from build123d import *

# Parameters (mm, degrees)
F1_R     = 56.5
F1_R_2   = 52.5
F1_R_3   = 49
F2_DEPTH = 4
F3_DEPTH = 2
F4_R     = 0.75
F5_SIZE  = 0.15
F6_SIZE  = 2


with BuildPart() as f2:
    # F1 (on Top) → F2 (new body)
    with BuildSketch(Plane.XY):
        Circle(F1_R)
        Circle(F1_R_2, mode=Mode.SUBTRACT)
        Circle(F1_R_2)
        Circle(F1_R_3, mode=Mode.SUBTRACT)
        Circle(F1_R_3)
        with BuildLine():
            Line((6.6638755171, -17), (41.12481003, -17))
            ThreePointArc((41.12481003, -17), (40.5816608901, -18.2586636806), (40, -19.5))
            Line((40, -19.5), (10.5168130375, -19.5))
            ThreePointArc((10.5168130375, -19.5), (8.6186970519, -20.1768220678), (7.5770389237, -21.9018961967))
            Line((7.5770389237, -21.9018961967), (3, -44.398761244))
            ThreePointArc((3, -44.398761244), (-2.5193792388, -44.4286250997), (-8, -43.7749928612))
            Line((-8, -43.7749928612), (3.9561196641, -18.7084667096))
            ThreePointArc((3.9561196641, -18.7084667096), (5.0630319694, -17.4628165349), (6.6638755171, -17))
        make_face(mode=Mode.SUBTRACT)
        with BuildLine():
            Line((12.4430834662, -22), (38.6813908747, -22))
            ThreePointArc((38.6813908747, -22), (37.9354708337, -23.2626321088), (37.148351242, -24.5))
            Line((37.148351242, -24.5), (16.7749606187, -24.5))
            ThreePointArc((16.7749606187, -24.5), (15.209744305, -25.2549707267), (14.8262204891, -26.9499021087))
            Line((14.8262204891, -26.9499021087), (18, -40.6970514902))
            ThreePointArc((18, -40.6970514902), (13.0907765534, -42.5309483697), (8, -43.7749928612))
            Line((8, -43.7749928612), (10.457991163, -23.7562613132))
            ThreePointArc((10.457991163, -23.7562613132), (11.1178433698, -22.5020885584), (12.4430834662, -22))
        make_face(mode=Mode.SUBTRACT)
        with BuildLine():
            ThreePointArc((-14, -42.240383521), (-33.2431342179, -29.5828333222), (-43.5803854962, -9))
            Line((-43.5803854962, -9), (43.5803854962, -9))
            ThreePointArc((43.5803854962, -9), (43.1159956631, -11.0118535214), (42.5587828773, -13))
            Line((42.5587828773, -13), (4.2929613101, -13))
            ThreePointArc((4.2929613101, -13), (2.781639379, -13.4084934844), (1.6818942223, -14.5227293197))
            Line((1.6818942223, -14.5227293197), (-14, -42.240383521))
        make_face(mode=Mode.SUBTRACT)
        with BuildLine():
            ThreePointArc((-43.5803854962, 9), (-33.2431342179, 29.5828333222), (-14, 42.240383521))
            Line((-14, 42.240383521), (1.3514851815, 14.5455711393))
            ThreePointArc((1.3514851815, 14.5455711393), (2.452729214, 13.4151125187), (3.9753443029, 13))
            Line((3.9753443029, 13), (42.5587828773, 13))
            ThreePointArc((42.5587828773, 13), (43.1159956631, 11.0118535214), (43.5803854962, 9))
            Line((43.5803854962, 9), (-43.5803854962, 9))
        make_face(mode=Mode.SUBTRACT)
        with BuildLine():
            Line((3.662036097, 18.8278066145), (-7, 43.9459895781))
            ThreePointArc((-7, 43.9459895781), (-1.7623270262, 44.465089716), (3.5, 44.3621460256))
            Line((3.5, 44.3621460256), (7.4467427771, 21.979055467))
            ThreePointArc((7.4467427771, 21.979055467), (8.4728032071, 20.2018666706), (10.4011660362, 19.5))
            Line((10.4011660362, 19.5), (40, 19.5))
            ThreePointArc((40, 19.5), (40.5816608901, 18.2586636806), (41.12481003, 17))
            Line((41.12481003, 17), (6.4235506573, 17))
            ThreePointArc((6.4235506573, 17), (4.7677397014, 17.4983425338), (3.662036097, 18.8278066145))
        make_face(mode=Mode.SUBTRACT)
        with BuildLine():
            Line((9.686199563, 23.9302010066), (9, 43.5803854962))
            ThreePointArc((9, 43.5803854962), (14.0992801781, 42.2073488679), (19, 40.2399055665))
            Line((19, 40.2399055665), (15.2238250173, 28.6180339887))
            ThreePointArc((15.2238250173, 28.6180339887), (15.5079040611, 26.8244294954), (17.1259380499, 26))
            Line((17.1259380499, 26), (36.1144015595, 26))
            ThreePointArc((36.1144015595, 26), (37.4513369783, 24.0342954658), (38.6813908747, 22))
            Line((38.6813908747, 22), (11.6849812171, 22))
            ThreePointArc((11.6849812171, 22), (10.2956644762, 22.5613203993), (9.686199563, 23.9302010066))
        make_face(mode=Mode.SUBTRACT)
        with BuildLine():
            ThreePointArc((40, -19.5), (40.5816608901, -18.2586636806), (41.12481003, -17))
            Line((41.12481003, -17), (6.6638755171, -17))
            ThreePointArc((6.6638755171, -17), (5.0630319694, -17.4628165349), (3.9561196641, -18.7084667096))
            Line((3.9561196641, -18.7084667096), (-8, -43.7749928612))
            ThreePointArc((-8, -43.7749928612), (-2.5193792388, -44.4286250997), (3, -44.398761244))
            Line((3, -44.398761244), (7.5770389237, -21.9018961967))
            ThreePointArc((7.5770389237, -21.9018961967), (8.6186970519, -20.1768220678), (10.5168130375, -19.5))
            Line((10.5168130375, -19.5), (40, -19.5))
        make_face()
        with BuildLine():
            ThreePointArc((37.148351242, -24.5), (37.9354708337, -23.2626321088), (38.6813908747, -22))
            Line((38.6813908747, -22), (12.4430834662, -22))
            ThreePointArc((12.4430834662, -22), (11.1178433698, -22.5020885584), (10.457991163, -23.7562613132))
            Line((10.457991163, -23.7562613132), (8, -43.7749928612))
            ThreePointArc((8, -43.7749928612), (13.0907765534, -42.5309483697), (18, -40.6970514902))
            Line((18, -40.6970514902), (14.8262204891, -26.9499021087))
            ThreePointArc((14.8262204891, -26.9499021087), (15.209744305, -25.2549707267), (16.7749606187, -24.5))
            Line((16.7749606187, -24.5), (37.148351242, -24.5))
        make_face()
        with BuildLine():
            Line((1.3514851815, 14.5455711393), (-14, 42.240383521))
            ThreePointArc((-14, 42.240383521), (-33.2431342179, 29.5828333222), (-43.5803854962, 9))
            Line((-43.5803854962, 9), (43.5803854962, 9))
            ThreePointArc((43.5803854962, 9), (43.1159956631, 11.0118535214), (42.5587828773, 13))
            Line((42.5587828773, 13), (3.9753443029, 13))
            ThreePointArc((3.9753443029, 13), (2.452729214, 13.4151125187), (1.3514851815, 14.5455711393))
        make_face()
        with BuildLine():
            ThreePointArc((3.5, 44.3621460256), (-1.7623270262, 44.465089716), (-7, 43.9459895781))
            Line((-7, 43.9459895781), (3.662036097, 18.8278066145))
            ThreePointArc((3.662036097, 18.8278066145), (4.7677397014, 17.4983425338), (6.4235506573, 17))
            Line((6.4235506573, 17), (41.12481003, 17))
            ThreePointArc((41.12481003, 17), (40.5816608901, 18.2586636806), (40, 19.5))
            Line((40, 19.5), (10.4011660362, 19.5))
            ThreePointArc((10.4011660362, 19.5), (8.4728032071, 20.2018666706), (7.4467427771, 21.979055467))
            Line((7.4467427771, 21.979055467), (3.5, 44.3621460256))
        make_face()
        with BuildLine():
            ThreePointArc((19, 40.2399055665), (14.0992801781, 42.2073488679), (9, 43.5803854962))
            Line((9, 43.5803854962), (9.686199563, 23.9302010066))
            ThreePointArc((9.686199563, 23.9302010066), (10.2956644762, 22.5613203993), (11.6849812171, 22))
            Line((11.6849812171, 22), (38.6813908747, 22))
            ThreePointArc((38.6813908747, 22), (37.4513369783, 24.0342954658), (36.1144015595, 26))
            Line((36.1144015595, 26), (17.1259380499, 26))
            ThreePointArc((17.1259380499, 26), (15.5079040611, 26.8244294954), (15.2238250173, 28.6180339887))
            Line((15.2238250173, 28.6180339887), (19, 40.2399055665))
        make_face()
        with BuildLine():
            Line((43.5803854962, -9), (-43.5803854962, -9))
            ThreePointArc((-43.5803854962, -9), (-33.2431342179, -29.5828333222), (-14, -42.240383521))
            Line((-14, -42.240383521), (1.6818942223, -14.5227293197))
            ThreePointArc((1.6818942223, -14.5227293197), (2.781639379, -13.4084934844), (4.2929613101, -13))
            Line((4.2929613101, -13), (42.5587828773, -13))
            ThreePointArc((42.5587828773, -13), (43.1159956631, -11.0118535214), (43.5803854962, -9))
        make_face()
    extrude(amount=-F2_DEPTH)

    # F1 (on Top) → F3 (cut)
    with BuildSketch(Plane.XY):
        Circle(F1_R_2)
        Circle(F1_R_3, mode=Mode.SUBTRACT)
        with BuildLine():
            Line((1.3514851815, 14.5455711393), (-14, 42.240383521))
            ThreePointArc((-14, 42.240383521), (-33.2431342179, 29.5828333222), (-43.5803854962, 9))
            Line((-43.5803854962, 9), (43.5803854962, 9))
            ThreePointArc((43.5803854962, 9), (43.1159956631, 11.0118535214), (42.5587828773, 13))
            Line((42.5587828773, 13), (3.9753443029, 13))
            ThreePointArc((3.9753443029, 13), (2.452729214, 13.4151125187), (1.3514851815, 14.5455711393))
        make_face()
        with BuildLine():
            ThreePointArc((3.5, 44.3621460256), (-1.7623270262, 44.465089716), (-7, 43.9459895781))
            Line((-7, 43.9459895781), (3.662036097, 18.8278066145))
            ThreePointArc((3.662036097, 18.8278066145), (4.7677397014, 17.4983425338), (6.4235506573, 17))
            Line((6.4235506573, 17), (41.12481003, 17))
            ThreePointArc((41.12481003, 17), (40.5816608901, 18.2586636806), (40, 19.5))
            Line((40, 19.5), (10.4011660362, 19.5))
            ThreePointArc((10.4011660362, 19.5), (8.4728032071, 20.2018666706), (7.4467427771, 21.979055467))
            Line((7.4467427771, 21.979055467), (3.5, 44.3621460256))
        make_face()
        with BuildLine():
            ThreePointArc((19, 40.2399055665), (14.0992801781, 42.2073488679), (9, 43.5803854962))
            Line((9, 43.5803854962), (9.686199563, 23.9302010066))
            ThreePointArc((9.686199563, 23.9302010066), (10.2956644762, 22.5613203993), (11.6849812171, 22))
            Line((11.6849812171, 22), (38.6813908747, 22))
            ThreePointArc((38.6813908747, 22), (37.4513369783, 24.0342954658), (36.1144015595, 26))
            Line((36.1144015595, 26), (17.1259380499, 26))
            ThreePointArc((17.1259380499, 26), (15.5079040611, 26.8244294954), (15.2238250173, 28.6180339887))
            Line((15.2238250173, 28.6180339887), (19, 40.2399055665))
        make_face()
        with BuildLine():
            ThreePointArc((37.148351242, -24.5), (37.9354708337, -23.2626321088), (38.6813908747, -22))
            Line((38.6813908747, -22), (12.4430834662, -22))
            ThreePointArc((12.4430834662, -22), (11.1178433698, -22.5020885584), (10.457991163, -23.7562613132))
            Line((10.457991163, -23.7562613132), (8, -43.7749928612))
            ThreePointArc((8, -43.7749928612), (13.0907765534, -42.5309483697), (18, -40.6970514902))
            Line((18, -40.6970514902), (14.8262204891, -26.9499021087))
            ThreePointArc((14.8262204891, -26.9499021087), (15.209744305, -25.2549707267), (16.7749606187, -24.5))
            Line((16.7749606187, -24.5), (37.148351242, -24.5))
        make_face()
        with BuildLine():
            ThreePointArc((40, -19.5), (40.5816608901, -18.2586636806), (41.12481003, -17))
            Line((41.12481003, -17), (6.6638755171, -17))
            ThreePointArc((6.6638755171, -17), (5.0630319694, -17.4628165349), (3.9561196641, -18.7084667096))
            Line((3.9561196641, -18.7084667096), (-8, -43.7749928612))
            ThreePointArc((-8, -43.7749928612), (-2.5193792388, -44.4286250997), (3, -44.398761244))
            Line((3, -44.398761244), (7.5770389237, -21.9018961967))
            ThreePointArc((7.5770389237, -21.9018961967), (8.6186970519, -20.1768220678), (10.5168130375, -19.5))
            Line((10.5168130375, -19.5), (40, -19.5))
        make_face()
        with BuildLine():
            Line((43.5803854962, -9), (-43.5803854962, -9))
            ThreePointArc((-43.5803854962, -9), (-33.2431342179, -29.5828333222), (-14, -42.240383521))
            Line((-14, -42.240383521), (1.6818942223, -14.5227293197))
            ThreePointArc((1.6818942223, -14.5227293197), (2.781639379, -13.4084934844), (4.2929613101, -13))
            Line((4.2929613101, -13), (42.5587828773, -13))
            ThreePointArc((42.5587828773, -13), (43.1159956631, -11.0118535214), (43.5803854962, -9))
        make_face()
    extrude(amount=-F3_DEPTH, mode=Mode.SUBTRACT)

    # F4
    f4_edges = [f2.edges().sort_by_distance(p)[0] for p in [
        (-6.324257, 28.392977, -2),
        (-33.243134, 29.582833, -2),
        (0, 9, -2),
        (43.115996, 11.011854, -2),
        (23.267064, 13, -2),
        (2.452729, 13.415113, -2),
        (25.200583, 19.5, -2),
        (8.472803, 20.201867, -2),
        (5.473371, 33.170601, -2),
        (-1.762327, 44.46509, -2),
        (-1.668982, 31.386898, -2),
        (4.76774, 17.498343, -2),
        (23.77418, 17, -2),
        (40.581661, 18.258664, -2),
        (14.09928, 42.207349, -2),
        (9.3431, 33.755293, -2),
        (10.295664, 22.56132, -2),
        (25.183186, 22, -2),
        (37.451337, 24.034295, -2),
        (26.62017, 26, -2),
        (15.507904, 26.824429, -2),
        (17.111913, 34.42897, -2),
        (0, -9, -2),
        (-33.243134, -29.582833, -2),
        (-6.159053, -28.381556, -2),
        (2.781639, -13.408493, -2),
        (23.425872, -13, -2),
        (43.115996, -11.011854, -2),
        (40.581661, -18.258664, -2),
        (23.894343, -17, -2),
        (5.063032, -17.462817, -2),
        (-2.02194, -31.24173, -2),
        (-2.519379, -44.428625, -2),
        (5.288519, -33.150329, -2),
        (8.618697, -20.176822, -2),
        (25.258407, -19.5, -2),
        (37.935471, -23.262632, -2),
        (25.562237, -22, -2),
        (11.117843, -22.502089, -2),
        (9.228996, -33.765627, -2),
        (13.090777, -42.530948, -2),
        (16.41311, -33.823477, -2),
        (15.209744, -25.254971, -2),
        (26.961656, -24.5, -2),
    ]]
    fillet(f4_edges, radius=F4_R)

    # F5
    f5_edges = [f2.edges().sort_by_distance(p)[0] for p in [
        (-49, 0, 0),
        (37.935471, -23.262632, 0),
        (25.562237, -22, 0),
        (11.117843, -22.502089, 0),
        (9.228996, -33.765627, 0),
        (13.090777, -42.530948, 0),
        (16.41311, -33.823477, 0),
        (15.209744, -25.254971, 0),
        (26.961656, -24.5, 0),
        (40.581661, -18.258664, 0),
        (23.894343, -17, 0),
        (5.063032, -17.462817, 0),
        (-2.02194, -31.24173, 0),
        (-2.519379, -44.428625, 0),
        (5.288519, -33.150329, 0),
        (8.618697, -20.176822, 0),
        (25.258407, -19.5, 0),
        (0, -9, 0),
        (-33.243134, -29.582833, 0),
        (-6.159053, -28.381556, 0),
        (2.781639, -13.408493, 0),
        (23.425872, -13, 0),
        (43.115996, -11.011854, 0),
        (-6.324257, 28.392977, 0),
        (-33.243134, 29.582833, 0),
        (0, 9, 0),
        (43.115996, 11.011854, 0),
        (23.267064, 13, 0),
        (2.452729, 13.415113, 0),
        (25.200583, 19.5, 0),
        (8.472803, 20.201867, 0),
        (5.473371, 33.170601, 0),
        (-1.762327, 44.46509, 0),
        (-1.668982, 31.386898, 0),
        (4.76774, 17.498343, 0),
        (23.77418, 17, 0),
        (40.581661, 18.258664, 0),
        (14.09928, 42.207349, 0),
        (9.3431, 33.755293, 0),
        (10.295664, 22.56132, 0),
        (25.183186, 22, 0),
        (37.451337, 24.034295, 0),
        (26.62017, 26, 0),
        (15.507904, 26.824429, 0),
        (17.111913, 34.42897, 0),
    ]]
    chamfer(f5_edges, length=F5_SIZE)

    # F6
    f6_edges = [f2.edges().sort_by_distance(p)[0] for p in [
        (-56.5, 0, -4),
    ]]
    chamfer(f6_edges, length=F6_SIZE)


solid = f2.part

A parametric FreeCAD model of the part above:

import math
import FreeCAD as App
import Part
import Sketcher

V = App.Vector
Q = App.Units.Quantity


def edges_at(feature, points):
    """Names of the edges that pass closest to the given points."""
    edges = feature.Shape.Edges
    near = lambda p: min(range(len(edges)), key=lambda i: edges[i].distToShape(Part.Vertex(*p))[0])
    return sorted({f"Edge{near(p) + 1}" for p in points})

doc = App.newDocument("Part")
body = doc.addObject("PartDesign::Body", "Body")

# Sketch on XY plane
sketch1 = body.newObject("Sketcher::SketchObject", "Sketch")
sketch1.AttachmentSupport = (doc.getObject("XY_Plane"), [""])
sketch1.MapMode = "FlatFace"
sketch1.addGeometry(Part.Circle(V(0, 0, 0), V(0, 0, 1), 56), False)
sketch1.addConstraint([
    Sketcher.Constraint("Coincident", 0, 3, -1, 1),
    Sketcher.Constraint("Diameter", 0, 113.0),
])
pad1 = body.newObject("PartDesign::Pad", "Pad")
pad1.Profile = sketch1
pad1.Length = 4
pad1.Reversed = True

# Sketch on XY plane
sketch2 = body.newObject("Sketcher::SketchObject", "Sketch001")
sketch2.AttachmentSupport = (doc.getObject("XY_Plane"), [""])
sketch2.MapMode = "FlatFace"
sketch2.addGeometry([
    Part.Circle(V(0, 0, 0), V(0, 0, 1), 52.5),  # 0
    Part.Circle(V(0, 0, 0), V(0, 0, 1), 49),  # 1
    Part.LineSegment(V(1.4, 14.5, 0), V(-14, 42.2, 0)),  # 2
    Part.ArcOfCircle(Part.Circle(V(0, 0, 0), V(0, 0, 1), 44.5), math.radians(108), math.radians(168)),  # 3
    Part.LineSegment(V(-43.6, 9, 0), V(43.6, 9, 0)),  # 4
    Part.ArcOfCircle(Part.Circle(V(0, 0, 0), V(0, 0, 1), 44.5), math.radians(11.67), math.radians(16.99)),  # 5
    Part.LineSegment(V(42.6, 13, 0), V(4, 13, 0)),  # 6
    Part.ArcOfCircle(Part.Circle(V(4, 16, 0), V(0, 0, 1), 3), math.radians(-151), math.radians(-90)),  # 7
    Part.ArcOfCircle(Part.Circle(V(0, 0, 0), V(0, 0, 1), 44.5), math.radians(85.49), math.radians(99.05)),  # 8
    Part.LineSegment(V(-7, 43.9, 0), V(3.7, 18.8, 0)),  # 9
    Part.ArcOfCircle(Part.Circle(V(6.4, 20, 0), V(0, 0, 1), 3), math.radians(-157), math.radians(-90)),  # 10
    Part.LineSegment(V(6.4, 17, 0), V(41.1, 17, 0)),  # 11
    Part.ArcOfCircle(Part.Circle(V(0, 0, 0), V(0, 0, 1), 44.5), math.radians(22.46), math.radians(25.99)),  # 12
    Part.LineSegment(V(40, 19.5, 0), V(10.4, 19.5, 0)),  # 13
    Part.ArcOfCircle(Part.Circle(V(10.4, 22.5, 0), V(0, 0, 1), 3), math.radians(-170), math.radians(-90)),  # 14
    Part.LineSegment(V(7.4, 22, 0), V(3.5, 44.4, 0)),  # 15
    Part.ArcOfCircle(Part.Circle(V(0, 0, 0), V(0, 0, 1), 44.5), math.radians(64.72), math.radians(78.33)),  # 16
    Part.LineSegment(V(9, 43.6, 0), V(9.7, 23.9, 0)),  # 17
    Part.ArcOfCircle(Part.Circle(V(11.7, 24, 0), V(0, 0, 1), 2), math.radians(-178), math.radians(-90)),  # 18
    Part.LineSegment(V(11.7, 22, 0), V(38.7, 22, 0)),  # 19
    Part.ArcOfCircle(Part.Circle(V(0, 0, 0), V(0, 0, 1), 44.5), math.radians(29.63), math.radians(35.75)),  # 20
    Part.LineSegment(V(36.1, 26, 0), V(17.1, 26, 0)),  # 21
    Part.ArcOfCircle(Part.Circle(V(17.1, 28, 0), V(0, 0, 1), 2), math.radians(162), math.radians(270)),  # 22
    Part.LineSegment(V(15.2, 28.6, 0), V(19, 40.2, 0)),  # 23
    Part.ArcOfCircle(Part.Circle(V(0, 0, 0), V(0, 0, 1), 44.5), math.radians(-33.41), math.radians(-29.63)),  # 24
    Part.LineSegment(V(38.7, -22, 0), V(12.4, -22, 0)),  # 25
    Part.ArcOfCircle(Part.Circle(V(12.4, -24, 0), V(0, 0, 1), 2), math.radians(90), math.radians(173)),  # 26
    Part.LineSegment(V(10.5, -23.8, 0), V(8, -43.8, 0)),  # 27
    Part.ArcOfCircle(Part.Circle(V(0, 0, 0), V(0, 0, 1), 44.5), math.radians(-79.64), math.radians(-66.14)),  # 28
    Part.LineSegment(V(18, -40.7, 0), V(14.8, -26.9, 0)),  # 29
    Part.ArcOfCircle(Part.Circle(V(16.8, -26.5, 0), V(0, 0, 1), 2), math.radians(90), math.radians(193)),  # 30
    Part.LineSegment(V(16.8, -24.5, 0), V(37.1, -24.5, 0)),  # 31
    Part.ArcOfCircle(Part.Circle(V(0, 0, 0), V(0, 0, 1), 44.5), math.radians(-25.99), math.radians(-22.46)),  # 32
    Part.LineSegment(V(41.1, -17, 0), V(6.7, -17, 0)),  # 33
    Part.ArcOfCircle(Part.Circle(V(6.7, -20, 0), V(0, 0, 1), 3), math.radians(90), math.radians(155)),  # 34
    Part.LineSegment(V(4, -18.7, 0), V(-8, -43.8, 0)),  # 35
    Part.ArcOfCircle(Part.Circle(V(0, 0, 0), V(0, 0, 1), 44.5), math.radians(-100.36), math.radians(-86.13)),  # 36
    Part.LineSegment(V(3, -44.4, 0), V(7.6, -21.9, 0)),  # 37
    Part.ArcOfCircle(Part.Circle(V(10.5, -22.5, 0), V(0, 0, 1), 3), math.radians(90), math.radians(169)),  # 38
    Part.LineSegment(V(10.5, -19.5, 0), V(40, -19.5, 0)),  # 39
    Part.LineSegment(V(43.6, -9, 0), V(-43.6, -9, 0)),  # 40
    Part.ArcOfCircle(Part.Circle(V(0, 0, 0), V(0, 0, 1), 44.5), math.radians(-168), math.radians(-108)),  # 41
    Part.LineSegment(V(-14, -42.2, 0), V(1.7, -14.5, 0)),  # 42
    Part.ArcOfCircle(Part.Circle(V(4.3, -16, 0), V(0, 0, 1), 3), math.radians(90), math.radians(151)),  # 43
    Part.LineSegment(V(4.3, -13, 0), V(42.6, -13, 0)),  # 44
    Part.ArcOfCircle(Part.Circle(V(0, 0, 0), V(0, 0, 1), 44.5), math.radians(-16.99), math.radians(-11.67)),  # 45
], False)
sketch2.addConstraint([
    Sketcher.Constraint("Coincident", 2, 2, 3, 1),
    Sketcher.Constraint("Coincident", 3, 2, 4, 1),
    Sketcher.Constraint("Coincident", 4, 2, 5, 1),
    Sketcher.Constraint("Coincident", 5, 2, 6, 1),
    Sketcher.Constraint("Tangent", 6, 2, 7, 2),
    Sketcher.Constraint("Tangent", 7, 1, 2, 1),
    Sketcher.Constraint("Coincident", 8, 2, 9, 1),
    Sketcher.Constraint("Tangent", 9, 2, 10, 1),
    Sketcher.Constraint("Tangent", 10, 2, 11, 1),
    Sketcher.Constraint("Coincident", 11, 2, 12, 1),
    Sketcher.Constraint("Coincident", 12, 2, 13, 1),
    Sketcher.Constraint("Tangent", 13, 2, 14, 2),
    Sketcher.Constraint("Tangent", 14, 1, 15, 1),
    Sketcher.Constraint("Coincident", 15, 2, 8, 1),
    Sketcher.Constraint("Coincident", 16, 2, 17, 1),
    Sketcher.Constraint("Tangent", 17, 2, 18, 1),
    Sketcher.Constraint("Tangent", 18, 2, 19, 1),
    Sketcher.Constraint("Coincident", 19, 2, 20, 1),
    Sketcher.Constraint("Coincident", 20, 2, 21, 1),
    Sketcher.Constraint("Tangent", 21, 2, 22, 2),
    Sketcher.Constraint("Tangent", 22, 1, 23, 1),
    Sketcher.Constraint("Coincident", 23, 2, 16, 1),
    Sketcher.Constraint("Coincident", 24, 2, 25, 1),
    Sketcher.Constraint("Tangent", 25, 2, 26, 1),
    Sketcher.Constraint("Tangent", 26, 2, 27, 1),
    Sketcher.Constraint("Coincident", 27, 2, 28, 1),
    Sketcher.Constraint("Coincident", 28, 2, 29, 1),
    Sketcher.Constraint("Tangent", 29, 2, 30, 2),
    Sketcher.Constraint("Tangent", 30, 1, 31, 1),
    Sketcher.Constraint("Coincident", 31, 2, 24, 1),
    Sketcher.Constraint("Coincident", 32, 2, 33, 1),
    Sketcher.Constraint("Tangent", 33, 2, 34, 1),
    Sketcher.Constraint("Tangent", 34, 2, 35, 1),
    Sketcher.Constraint("Coincident", 35, 2, 36, 1),
    Sketcher.Constraint("Coincident", 36, 2, 37, 1),
    Sketcher.Constraint("Tangent", 37, 2, 38, 2),
    Sketcher.Constraint("Tangent", 38, 1, 39, 1),
    Sketcher.Constraint("Coincident", 39, 2, 32, 1),
    Sketcher.Constraint("Coincident", 40, 2, 41, 1),
    Sketcher.Constraint("Coincident", 41, 2, 42, 1),
    Sketcher.Constraint("Tangent", 42, 2, 43, 2),
    Sketcher.Constraint("Tangent", 43, 1, 44, 1),
    Sketcher.Constraint("Coincident", 44, 2, 45, 1),
    Sketcher.Constraint("Coincident", 45, 2, 40, 1),
    Sketcher.Constraint("Horizontal", 4),
    Sketcher.Constraint("Horizontal", 6),
    Sketcher.Constraint("Horizontal", 11),
    Sketcher.Constraint("Horizontal", 13),
    Sketcher.Constraint("Horizontal", 19),
    Sketcher.Constraint("Horizontal", 21),
    Sketcher.Constraint("Horizontal", 25),
    Sketcher.Constraint("Horizontal", 31),
    Sketcher.Constraint("Horizontal", 33),
    Sketcher.Constraint("Horizontal", 39),
    Sketcher.Constraint("Horizontal", 40),
    Sketcher.Constraint("Horizontal", 44),
    Sketcher.Constraint("Coincident", 0, 3, -1, 1),
    Sketcher.Constraint("Coincident", 1, 3, -1, 1),
    Sketcher.Constraint("Coincident", 3, 3, -1, 1),
    Sketcher.Constraint("Coincident", 5, 3, -1, 1),
    Sketcher.Constraint("Coincident", 8, 3, -1, 1),
    Sketcher.Constraint("Coincident", 12, 3, -1, 1),
    Sketcher.Constraint("Coincident", 16, 3, -1, 1),
    Sketcher.Constraint("Coincident", 20, 3, -1, 1),
    Sketcher.Constraint("Coincident", 24, 3, -1, 1),
    Sketcher.Constraint("Coincident", 28, 3, -1, 1),
    Sketcher.Constraint("Coincident", 32, 3, -1, 1),
    Sketcher.Constraint("Coincident", 36, 3, -1, 1),
    Sketcher.Constraint("Coincident", 41, 3, -1, 1),
    Sketcher.Constraint("Coincident", 45, 3, -1, 1),
    Sketcher.Constraint("Equal", 3, 5),
    Sketcher.Constraint("Equal", 5, 8),
    Sketcher.Constraint("Equal", 7, 10),
    Sketcher.Constraint("Equal", 8, 12),
    Sketcher.Constraint("Equal", 10, 14),
    Sketcher.Constraint("Equal", 12, 16),
    Sketcher.Constraint("Equal", 16, 20),
    Sketcher.Constraint("Equal", 18, 22),
    Sketcher.Constraint("Equal", 20, 24),
    Sketcher.Constraint("Equal", 22, 26),
    Sketcher.Constraint("Equal", 24, 28),
    Sketcher.Constraint("Equal", 26, 30),
    Sketcher.Constraint("Equal", 28, 32),
    Sketcher.Constraint("Equal", 14, 34),
    Sketcher.Constraint("Equal", 32, 36),
    Sketcher.Constraint("Equal", 34, 38),
    Sketcher.Constraint("Equal", 36, 41),
    Sketcher.Constraint("Equal", 38, 43),
    Sketcher.Constraint("Equal", 41, 45),
    Sketcher.Constraint("Horizontal", 27, 2, 35, 2),
    Sketcher.Constraint("Vertical", 19, 2, 24, 2),
    Sketcher.Constraint("Vertical", 11, 2, 32, 2),
    Sketcher.Constraint("Vertical", 12, 2, 39, 2),
    Sketcher.Constraint("Vertical", 3, 2, 40, 2),
    Sketcher.Constraint("Vertical", 2, 2, 41, 2),
    Sketcher.Constraint("Vertical", 5, 2, 44, 2),
    Sketcher.Constraint("Diameter", 0, 105.0),
    Sketcher.Constraint("Diameter", 1, 98.0),
    Sketcher.Constraint("Radius", 7, 3.0),
    Sketcher.Constraint("Radius", 18, 2.0),
    Sketcher.Constraint("Radius", 3, 44.5),
    Sketcher.Constraint("Angle", 2, Q("119 deg")),
    Sketcher.Constraint("Angle", 9, Q("-67 deg")),
    Sketcher.Constraint("Angle", 15, Q("100 deg")),
    Sketcher.Constraint("Angle", 17, Q("-88 deg")),
    Sketcher.Constraint("Angle", 23, Q("72 deg")),
    Sketcher.Constraint("Angle", 27, Q("-97 deg")),
    Sketcher.Constraint("Angle", 29, Q("103 deg")),
    Sketcher.Constraint("DistanceY", -1, 1, 7, 3, 16.0),
    Sketcher.Constraint("DistanceY", -1, 1, 10, 3, 20.0),
    Sketcher.Constraint("DistanceY", -1, 1, 18, 3, 24.0),
    Sketcher.Constraint("DistanceY", -1, 1, 22, 3, 28.0),
    Sketcher.Constraint("DistanceX", 2, 2, -1, 1, 14.0),
    Sketcher.Constraint("DistanceY", -1, 1, 3, 2, 9.0),
    Sketcher.Constraint("DistanceX", 8, 2, -1, 1, 7.0),
    Sketcher.Constraint("DistanceX", -1, 1, 12, 2, 40.0),
    Sketcher.Constraint("DistanceX", -1, 1, 16, 2, 9.0),
    Sketcher.Constraint("DistanceX", -1, 1, 23, 2, 19.0),
    Sketcher.Constraint("DistanceX", -1, 1, 27, 2, 8.0),
    Sketcher.Constraint("DistanceX", -1, 1, 28, 2, 18.0),
    Sketcher.Constraint("DistanceX", -1, 1, 36, 2, 3.0),
    Sketcher.Constraint("Angle", 35, Q("-115.5 deg")),
    Sketcher.Constraint("Angle", 37, Q("78.5 deg")),
    Sketcher.Constraint("Angle", 42, Q("60.5 deg")),
    Sketcher.Constraint("DistanceY", 30, 3, -1, 1, 26.5),
    Sketcher.Constraint("DistanceX", -1, 1, 15, 2, 3.5),
])
pocket1 = body.newObject("PartDesign::Pocket", "Pocket")
pocket1.Profile = sketch2
pocket1.Length = 2
doc.recompute()

fillet = body.newObject("PartDesign::Fillet", "Fillet")
fillet.Base = (pocket1, edges_at(pocket1, [
    (-6.324, 28.393, -2),
    (-33.243, 29.583, -2),
    (0, 9, -2),
    (43.116, 11.012, -2),
    (23.267, 13, -2),
    (2.453, 13.415, -2),
    (25.201, 19.5, -2),
    (8.473, 20.202, -2),
    (5.473, 33.171, -2),
    (-1.762, 44.465, -2),
    (-1.669, 31.387, -2),
    (4.768, 17.498, -2),
    (23.774, 17, -2),
    (40.582, 18.259, -2),
    (14.099, 42.207, -2),
    (9.343, 33.755, -2),
    (10.296, 22.561, -2),
    (25.183, 22, -2),
    (37.451, 24.034, -2),
    (26.62, 26, -2),
    (15.508, 26.824, -2),
    (17.112, 34.429, -2),
    (0, -9, -2),
    (-33.243, -29.583, -2),
    (-6.159, -28.382, -2),
    (2.782, -13.408, -2),
    (23.426, -13, -2),
    (43.116, -11.012, -2),
    (40.582, -18.259, -2),
    (23.894, -17, -2),
    (5.063, -17.463, -2),
    (-2.022, -31.242, -2),
    (-2.519, -44.429, -2),
    (5.289, -33.15, -2),
    (8.619, -20.177, -2),
    (25.258, -19.5, -2),
    (37.935, -23.263, -2),
    (25.562, -22, -2),
    (11.118, -22.502, -2),
    (9.229, -33.766, -2),
    (13.091, -42.531, -2),
    (16.413, -33.823, -2),
    (15.21, -25.255, -2),
    (26.962, -24.5, -2),
]))
fillet.Radius = 0.75
doc.recompute()

chamfer = body.newObject("PartDesign::Chamfer", "Chamfer")
chamfer.Base = (fillet, edges_at(fillet, [
    (-49, 0, 0),
    (37.935, -23.263, 0),
    (25.562, -22, 0),
    (11.118, -22.502, 0),
    (9.229, -33.766, 0),
    (13.091, -42.531, 0),
    (16.413, -33.823, 0),
    (15.21, -25.255, 0),
    (26.962, -24.5, 0),
    (40.582, -18.259, 0),
    (23.894, -17, 0),
    (5.063, -17.463, 0),
    (-2.022, -31.242, 0),
    (-2.519, -44.429, 0),
    (5.289, -33.15, 0),
    (8.619, -20.177, 0),
    (25.258, -19.5, 0),
    (0, -9, 0),
    (-33.243, -29.583, 0),
    (-6.159, -28.382, 0),
    (2.782, -13.408, 0),
    (23.426, -13, 0),
    (43.116, -11.012, 0),
    (-6.324, 28.393, 0),
    (-33.243, 29.583, 0),
    (0, 9, 0),
    (43.116, 11.012, 0),
    (23.267, 13, 0),
    (2.453, 13.415, 0),
    (25.201, 19.5, 0),
    (8.473, 20.202, 0),
    (5.473, 33.171, 0),
    (-1.762, 44.465, 0),
    (-1.669, 31.387, 0),
    (4.768, 17.498, 0),
    (23.774, 17, 0),
    (40.582, 18.259, 0),
    (14.099, 42.207, 0),
    (9.343, 33.755, 0),
    (10.296, 22.561, 0),
    (25.183, 22, 0),
    (37.451, 24.034, 0),
    (26.62, 26, 0),
    (15.508, 26.824, 0),
    (17.112, 34.429, 0),
]))
chamfer.Size = 0.15
doc.recompute()

chamfer2 = body.newObject("PartDesign::Chamfer", "Chamfer001")
chamfer2.Base = (chamfer, edges_at(chamfer, [(-56.5, 0, -4)]))
chamfer2.Size = 2

doc.recompute()
